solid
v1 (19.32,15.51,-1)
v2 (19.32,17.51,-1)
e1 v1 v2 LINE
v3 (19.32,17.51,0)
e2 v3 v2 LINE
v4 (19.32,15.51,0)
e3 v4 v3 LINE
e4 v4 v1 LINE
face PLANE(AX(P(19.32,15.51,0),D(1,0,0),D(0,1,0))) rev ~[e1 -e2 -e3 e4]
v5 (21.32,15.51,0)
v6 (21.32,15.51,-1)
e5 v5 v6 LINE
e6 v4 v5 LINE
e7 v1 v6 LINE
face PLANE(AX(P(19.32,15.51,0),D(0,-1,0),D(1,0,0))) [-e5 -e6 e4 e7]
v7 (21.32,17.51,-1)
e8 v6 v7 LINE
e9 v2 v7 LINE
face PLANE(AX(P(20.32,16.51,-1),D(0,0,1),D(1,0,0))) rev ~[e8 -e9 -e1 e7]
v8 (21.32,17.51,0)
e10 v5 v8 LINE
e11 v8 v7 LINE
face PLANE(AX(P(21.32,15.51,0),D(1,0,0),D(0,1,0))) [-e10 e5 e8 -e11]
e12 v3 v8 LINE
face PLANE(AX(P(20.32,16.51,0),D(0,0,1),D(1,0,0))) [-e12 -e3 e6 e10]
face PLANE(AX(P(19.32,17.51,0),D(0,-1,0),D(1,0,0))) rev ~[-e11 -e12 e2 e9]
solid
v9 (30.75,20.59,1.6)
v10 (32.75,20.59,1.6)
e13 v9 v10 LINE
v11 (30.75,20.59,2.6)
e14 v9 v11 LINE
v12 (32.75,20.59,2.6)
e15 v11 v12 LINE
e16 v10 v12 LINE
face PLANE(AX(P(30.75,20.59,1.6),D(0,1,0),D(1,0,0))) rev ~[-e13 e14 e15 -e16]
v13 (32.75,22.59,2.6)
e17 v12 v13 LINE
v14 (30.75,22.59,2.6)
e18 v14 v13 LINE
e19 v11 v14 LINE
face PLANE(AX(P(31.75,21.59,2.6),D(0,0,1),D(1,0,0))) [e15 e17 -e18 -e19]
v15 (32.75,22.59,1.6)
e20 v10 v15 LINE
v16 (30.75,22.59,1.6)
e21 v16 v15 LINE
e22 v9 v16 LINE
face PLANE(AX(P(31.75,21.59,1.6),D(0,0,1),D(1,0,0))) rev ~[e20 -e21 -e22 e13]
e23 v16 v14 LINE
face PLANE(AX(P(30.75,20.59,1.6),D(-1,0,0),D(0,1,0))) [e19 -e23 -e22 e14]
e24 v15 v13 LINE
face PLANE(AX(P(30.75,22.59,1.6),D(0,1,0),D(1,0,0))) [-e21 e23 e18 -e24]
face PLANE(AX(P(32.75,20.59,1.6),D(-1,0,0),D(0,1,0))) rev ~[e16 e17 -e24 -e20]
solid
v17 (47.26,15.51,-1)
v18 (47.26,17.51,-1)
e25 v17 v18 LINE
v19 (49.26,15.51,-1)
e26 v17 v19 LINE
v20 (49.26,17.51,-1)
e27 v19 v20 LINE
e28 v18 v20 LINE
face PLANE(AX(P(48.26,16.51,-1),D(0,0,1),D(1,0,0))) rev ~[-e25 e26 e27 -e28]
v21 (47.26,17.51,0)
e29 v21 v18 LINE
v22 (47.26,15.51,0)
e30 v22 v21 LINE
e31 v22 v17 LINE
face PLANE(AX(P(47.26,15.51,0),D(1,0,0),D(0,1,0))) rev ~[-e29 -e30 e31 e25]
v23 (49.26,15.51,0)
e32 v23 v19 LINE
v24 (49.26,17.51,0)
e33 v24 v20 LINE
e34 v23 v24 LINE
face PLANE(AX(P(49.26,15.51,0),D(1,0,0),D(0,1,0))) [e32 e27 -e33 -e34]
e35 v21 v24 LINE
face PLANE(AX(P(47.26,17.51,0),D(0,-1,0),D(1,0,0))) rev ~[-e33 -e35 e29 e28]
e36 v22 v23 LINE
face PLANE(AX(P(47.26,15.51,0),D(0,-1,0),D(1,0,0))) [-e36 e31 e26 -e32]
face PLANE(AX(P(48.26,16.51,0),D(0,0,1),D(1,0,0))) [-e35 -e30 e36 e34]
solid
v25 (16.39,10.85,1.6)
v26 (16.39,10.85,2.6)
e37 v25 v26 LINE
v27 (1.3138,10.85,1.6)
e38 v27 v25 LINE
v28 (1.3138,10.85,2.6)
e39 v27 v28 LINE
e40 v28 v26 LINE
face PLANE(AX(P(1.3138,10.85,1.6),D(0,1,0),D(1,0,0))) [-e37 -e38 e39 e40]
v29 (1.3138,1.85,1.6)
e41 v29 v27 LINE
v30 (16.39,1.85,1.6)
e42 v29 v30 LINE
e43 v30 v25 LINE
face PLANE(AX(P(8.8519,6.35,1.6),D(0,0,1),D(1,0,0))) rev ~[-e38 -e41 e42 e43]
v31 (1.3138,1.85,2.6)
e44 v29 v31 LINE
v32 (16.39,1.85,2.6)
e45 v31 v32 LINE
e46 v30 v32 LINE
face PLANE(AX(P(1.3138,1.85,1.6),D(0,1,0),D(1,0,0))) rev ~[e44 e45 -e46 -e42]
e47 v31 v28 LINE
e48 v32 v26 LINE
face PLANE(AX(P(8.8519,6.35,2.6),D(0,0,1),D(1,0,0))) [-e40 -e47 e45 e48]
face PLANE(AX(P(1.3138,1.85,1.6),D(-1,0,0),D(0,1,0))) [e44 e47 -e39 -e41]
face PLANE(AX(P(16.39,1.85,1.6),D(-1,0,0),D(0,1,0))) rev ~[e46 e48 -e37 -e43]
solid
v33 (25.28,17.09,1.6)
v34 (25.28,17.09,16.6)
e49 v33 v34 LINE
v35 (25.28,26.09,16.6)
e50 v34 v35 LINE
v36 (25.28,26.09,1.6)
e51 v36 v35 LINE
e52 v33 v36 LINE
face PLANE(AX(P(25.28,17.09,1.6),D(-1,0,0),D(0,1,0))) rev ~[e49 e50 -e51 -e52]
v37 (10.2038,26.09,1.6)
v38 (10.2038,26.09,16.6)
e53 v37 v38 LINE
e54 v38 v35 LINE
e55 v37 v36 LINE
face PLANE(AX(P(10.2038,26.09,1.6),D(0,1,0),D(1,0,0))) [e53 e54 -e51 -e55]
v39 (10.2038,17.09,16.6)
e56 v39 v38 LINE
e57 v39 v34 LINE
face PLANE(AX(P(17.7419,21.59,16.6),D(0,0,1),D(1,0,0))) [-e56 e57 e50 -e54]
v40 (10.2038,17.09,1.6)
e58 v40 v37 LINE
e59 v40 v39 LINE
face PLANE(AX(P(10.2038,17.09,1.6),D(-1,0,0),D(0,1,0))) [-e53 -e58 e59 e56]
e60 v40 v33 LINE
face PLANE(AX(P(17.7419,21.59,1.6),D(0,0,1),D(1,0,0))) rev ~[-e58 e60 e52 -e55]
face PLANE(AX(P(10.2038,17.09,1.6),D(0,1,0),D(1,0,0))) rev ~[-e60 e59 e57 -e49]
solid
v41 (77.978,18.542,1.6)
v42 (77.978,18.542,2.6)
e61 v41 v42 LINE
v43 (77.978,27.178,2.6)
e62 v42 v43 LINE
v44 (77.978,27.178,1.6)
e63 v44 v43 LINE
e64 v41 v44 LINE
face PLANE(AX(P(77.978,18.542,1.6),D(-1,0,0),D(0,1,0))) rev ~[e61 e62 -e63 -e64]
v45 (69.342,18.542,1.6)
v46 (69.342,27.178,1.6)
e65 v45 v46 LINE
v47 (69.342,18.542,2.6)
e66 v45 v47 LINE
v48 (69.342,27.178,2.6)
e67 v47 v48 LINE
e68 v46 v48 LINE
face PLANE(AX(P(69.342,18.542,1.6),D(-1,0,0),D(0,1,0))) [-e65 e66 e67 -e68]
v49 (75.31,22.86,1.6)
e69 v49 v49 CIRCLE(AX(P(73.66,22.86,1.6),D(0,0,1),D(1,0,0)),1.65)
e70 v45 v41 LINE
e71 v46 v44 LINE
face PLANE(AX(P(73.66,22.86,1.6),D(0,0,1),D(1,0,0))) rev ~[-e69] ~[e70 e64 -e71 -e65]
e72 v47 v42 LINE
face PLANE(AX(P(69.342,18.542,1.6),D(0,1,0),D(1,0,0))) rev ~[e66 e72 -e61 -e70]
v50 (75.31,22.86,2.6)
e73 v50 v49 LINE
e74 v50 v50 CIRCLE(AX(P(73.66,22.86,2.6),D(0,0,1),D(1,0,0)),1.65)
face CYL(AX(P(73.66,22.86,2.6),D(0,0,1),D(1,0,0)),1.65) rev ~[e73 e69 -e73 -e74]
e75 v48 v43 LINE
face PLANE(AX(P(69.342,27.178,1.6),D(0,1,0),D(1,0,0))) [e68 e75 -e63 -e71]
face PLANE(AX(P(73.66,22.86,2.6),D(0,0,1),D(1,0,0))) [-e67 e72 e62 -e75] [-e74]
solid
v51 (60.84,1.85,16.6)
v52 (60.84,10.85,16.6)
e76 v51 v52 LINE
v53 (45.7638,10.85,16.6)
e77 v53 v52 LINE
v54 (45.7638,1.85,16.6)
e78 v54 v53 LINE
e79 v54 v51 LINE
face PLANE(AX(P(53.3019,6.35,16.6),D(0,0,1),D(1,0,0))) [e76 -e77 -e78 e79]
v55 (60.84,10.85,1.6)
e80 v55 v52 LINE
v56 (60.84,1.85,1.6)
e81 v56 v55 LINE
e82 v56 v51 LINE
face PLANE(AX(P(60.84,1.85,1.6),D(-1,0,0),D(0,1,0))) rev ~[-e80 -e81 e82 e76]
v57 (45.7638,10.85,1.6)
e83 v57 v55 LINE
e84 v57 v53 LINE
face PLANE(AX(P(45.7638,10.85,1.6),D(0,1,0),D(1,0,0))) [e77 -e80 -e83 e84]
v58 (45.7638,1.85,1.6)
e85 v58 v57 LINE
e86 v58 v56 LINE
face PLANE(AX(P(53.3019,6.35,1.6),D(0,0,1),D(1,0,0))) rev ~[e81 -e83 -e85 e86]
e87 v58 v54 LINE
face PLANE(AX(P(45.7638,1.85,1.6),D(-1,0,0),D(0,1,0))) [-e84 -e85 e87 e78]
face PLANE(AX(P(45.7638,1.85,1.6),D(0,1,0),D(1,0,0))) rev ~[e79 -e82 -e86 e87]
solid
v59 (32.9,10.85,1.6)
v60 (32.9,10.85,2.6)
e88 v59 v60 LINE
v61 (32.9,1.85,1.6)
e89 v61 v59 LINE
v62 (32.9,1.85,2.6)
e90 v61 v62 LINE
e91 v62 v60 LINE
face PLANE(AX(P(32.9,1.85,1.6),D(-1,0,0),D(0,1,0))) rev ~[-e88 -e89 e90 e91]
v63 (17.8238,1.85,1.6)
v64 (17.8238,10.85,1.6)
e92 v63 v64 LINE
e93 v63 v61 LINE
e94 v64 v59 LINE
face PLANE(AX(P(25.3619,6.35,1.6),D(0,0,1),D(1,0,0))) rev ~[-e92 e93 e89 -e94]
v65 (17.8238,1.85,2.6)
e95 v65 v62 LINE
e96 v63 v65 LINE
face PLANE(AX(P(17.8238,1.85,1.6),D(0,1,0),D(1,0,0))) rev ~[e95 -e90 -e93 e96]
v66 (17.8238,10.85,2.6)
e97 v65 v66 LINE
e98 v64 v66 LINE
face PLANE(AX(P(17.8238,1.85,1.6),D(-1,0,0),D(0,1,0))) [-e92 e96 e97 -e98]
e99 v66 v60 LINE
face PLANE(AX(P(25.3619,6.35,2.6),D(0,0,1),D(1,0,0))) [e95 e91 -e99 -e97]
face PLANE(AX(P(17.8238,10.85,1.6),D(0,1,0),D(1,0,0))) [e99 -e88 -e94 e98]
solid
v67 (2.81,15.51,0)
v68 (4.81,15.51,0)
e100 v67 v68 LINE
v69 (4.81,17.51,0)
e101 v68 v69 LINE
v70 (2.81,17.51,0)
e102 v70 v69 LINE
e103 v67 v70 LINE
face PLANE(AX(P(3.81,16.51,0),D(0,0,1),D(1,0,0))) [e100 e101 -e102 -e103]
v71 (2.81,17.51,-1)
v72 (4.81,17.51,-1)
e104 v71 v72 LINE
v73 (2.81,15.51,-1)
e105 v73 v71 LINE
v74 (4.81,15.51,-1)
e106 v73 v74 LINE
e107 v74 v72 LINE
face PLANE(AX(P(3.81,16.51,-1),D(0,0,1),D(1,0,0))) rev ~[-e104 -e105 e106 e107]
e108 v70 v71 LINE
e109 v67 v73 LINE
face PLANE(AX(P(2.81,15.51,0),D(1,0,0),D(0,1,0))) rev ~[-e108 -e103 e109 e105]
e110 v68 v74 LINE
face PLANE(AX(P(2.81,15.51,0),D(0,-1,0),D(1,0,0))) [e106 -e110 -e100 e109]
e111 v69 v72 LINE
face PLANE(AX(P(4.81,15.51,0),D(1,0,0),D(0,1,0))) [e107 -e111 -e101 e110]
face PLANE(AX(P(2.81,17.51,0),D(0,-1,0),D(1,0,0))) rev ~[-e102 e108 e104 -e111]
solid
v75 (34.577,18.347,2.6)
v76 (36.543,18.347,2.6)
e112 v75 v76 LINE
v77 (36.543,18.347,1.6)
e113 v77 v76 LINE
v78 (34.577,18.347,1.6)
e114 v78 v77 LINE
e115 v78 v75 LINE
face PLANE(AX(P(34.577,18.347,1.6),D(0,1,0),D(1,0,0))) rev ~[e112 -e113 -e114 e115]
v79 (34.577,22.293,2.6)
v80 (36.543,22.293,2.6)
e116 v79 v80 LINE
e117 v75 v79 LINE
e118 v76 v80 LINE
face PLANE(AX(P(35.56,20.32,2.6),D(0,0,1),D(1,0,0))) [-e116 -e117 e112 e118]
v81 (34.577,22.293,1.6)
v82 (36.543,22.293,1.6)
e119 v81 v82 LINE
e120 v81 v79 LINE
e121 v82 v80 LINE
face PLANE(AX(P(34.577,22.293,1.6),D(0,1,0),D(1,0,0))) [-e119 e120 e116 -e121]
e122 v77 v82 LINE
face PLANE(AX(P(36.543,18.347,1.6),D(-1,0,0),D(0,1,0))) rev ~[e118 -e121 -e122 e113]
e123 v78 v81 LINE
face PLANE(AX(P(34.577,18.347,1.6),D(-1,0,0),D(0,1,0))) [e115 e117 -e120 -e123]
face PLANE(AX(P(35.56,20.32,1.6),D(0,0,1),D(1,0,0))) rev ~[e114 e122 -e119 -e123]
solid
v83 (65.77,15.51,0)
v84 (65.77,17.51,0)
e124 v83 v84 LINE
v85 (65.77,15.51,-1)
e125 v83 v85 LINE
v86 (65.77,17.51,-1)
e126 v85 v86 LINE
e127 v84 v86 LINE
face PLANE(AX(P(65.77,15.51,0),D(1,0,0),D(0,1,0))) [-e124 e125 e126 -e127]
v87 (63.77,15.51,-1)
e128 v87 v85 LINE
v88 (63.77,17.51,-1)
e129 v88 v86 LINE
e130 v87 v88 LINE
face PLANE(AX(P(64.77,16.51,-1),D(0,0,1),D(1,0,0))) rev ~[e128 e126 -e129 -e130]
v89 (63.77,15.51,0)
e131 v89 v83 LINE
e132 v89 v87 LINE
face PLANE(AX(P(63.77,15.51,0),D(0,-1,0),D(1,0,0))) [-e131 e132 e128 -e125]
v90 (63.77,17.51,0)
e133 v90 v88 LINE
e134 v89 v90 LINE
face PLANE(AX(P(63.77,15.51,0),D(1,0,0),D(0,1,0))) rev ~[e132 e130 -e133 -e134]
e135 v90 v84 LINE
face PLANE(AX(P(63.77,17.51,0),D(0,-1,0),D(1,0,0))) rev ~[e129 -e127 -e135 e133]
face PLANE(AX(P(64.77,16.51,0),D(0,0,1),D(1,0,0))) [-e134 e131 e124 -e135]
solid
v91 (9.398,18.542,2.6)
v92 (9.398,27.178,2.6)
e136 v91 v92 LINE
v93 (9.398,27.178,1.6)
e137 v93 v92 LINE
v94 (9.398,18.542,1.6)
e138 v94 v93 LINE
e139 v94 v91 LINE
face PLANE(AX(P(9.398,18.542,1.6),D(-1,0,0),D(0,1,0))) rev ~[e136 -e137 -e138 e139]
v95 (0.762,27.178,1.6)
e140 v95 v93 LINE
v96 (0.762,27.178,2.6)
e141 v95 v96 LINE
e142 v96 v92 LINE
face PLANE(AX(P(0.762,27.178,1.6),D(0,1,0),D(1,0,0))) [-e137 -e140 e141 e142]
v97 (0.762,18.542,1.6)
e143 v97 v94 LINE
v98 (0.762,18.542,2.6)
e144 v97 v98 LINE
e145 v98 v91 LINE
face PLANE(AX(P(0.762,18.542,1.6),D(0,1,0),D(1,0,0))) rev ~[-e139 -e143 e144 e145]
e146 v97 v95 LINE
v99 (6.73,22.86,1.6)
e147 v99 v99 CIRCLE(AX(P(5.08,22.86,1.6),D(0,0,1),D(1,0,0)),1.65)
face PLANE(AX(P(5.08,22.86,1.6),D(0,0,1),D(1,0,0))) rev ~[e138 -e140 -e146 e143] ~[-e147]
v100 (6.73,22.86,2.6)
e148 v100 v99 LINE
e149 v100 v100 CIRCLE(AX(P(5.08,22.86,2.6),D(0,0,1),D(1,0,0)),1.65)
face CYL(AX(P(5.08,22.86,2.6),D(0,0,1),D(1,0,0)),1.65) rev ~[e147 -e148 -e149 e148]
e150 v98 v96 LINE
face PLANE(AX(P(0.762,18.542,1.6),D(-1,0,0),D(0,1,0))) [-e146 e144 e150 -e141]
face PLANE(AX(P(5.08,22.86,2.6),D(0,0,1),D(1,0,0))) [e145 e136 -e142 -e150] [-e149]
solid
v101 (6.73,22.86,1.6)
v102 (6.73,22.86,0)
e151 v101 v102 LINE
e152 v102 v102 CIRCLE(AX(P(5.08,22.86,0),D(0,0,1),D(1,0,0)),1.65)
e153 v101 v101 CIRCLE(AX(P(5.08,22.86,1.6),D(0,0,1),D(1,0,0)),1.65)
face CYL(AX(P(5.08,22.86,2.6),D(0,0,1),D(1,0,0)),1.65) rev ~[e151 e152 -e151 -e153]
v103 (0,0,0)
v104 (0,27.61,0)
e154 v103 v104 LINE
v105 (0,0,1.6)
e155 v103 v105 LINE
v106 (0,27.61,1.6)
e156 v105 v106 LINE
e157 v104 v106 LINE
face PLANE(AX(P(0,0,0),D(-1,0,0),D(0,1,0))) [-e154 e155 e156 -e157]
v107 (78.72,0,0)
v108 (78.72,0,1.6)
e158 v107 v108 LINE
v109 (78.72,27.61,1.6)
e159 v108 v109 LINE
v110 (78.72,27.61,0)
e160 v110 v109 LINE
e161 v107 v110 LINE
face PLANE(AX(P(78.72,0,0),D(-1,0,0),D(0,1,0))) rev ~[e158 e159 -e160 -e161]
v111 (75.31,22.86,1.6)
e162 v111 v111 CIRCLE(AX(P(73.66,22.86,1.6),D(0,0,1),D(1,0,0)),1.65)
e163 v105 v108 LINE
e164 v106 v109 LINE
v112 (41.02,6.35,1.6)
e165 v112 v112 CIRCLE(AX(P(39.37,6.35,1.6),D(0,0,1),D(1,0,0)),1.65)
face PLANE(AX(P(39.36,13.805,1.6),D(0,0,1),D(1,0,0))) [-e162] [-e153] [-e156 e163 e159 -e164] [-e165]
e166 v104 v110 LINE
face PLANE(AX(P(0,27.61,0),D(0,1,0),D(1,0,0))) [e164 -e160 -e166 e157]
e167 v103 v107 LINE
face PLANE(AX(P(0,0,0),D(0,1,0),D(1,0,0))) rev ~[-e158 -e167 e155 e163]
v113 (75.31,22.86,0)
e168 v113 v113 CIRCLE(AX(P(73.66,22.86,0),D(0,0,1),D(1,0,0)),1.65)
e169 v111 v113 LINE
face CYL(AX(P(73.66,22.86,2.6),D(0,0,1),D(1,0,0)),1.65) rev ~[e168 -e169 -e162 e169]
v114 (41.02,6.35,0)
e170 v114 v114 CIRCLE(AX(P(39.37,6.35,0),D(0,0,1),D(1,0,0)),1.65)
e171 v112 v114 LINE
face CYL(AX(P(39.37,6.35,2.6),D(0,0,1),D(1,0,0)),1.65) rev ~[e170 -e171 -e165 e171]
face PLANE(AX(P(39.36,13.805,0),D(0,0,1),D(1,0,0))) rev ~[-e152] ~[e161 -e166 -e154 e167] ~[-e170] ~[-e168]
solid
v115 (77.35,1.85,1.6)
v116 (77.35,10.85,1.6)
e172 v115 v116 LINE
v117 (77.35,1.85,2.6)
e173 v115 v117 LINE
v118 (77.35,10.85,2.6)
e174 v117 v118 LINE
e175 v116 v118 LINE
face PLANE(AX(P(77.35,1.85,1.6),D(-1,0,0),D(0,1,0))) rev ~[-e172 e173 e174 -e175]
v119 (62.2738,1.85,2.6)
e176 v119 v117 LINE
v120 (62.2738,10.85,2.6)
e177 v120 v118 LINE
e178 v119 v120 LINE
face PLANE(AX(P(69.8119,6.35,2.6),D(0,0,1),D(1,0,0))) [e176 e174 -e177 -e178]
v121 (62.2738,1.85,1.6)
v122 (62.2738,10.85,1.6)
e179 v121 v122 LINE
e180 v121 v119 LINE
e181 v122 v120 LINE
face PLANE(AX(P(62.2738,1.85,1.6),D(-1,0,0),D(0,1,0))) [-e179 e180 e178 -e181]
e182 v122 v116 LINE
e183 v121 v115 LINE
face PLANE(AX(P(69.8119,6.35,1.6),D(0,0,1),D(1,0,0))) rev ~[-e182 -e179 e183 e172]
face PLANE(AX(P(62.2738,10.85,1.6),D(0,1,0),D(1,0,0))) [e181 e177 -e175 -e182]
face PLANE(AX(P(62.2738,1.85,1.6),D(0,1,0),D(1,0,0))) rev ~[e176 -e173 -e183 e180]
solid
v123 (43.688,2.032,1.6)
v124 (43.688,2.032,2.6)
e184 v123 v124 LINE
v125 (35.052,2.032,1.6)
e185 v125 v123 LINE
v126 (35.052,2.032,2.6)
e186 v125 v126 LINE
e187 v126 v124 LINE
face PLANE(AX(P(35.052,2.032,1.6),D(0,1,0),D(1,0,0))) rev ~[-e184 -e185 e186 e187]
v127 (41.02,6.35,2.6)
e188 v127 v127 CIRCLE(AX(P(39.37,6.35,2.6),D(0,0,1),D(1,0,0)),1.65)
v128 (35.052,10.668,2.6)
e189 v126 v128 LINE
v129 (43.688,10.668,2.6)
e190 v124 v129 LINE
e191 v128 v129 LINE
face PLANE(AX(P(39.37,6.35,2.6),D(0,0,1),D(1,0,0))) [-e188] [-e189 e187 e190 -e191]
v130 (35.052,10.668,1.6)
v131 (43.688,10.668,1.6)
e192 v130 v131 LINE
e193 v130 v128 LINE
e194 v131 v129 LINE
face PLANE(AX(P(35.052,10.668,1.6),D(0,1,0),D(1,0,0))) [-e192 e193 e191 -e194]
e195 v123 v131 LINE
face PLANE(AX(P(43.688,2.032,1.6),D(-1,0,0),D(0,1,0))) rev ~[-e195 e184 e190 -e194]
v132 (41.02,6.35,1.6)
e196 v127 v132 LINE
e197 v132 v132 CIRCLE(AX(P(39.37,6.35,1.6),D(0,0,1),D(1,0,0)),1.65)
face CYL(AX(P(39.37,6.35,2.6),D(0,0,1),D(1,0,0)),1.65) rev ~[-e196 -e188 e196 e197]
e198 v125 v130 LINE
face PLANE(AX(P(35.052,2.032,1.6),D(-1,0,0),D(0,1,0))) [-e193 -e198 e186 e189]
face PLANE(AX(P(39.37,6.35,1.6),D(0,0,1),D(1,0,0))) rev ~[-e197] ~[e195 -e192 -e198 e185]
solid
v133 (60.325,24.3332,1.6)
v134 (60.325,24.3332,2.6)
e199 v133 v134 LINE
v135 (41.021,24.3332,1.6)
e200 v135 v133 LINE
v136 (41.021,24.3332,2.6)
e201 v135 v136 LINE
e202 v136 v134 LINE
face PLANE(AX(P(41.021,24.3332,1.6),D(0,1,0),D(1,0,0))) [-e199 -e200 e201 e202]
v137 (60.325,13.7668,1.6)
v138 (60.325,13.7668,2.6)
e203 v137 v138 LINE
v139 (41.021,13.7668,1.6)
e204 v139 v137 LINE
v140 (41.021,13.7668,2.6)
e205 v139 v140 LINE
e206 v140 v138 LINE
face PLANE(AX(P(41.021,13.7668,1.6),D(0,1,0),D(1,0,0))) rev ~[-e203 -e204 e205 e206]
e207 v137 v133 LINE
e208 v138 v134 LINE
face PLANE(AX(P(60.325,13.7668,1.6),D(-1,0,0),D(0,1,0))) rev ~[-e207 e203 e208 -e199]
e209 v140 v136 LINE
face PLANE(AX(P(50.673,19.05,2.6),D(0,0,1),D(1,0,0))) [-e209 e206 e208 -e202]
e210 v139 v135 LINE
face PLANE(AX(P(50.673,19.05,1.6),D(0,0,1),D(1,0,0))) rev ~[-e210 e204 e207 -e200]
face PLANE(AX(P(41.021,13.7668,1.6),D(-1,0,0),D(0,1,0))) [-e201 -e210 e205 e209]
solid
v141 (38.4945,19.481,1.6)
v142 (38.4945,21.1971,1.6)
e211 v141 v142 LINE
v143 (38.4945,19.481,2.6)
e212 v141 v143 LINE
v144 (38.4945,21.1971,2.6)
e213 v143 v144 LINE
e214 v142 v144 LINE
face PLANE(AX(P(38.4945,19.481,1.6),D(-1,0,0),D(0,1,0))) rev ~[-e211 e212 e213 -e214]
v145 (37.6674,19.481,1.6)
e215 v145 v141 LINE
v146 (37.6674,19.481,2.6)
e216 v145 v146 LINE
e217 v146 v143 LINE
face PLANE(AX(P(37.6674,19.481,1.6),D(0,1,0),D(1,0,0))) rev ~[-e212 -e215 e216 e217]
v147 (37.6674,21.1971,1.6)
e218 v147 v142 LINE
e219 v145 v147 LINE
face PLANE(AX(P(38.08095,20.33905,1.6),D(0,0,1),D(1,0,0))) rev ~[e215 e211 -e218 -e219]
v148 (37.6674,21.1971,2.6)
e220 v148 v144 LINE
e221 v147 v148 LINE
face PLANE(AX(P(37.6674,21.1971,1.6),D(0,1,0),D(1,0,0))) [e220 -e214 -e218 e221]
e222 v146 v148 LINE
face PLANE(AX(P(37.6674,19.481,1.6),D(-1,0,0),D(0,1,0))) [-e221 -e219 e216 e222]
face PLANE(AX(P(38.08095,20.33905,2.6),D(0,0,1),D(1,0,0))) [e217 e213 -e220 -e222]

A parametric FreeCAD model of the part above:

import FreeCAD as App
import Part
import Sketcher
from FreeCAD import Vector
Q = App.Units.Quantity

doc = App.newDocument("Part")
body = doc.addObject("PartDesign::Body", "Body")

sketch1 = body.newObject("Sketcher::SketchObject", "Sketch")
sketch1.AttachmentSupport = (doc.getObject("XY_Plane"), [""])
sketch1.MapMode = "FlatFace"
sketch1.addGeometry([
    Part.LineSegment(Vector(0, 28, 0), Vector(0, 0, 0)),
    Part.LineSegment(Vector(0, 0, 0), Vector(79, 0, 0)),
    Part.LineSegment(Vector(79, 0, 0), Vector(79, 28, 0)),
    Part.LineSegment(Vector(79, 28, 0), Vector(0, 28, 0)),
], False)
sketch1.addConstraint([
    Sketcher.Constraint("Coincident", 0, 2, 1, 1),
    Sketcher.Constraint("Coincident", 1, 2, 2, 1),
    Sketcher.Constraint("Coincident", 2, 2, 3, 1),
    Sketcher.Constraint("Coincident", 3, 2, 0, 1),
    Sketcher.Constraint("Vertical", 0),
    Sketcher.Constraint("Horizontal", 1),
    Sketcher.Constraint("Vertical", 2),
    Sketcher.Constraint("Horizontal", 3),
    Sketcher.Constraint("Coincident", 0, 2, -1, 1),
    Sketcher.Constraint("DistanceX", 1, 1, 1, 2, Q("78.72 mm")),
    Sketcher.Constraint("DistanceY", 0, 2, 0, 1, Q("27.61 mm")),
])
pad1 = body.newObject("PartDesign::Pad", "Pad")
pad1.Profile = sketch1
pad1.Length = 1.6
body2 = doc.addObject("PartDesign::Body", "Body001")

sketch2 = body2.newObject("Sketcher::SketchObject", "Sketch001")
sketch2.AttachmentSupport = (doc.getObject("XY_Plane001"), [""])
sketch2.MapMode = "FlatFace"
sketch2.AttachmentOffset = App.Placement(Vector(0, 0, 1.6), App.Rotation())
sketch2.addGeometry([
    Part.LineSegment(Vector(37.7, 21.2, 0), Vector(37.7, 19.5, 0)),
    Part.LineSegment(Vector(37.7, 19.5, 0), Vector(38.5, 19.5, 0)),
    Part.LineSegment(Vector(38.5, 19.5, 0), Vector(38.5, 21.2, 0)),
    Part.LineSegment(Vector(38.5, 21.2, 0), Vector(37.7, 21.2, 0)),
], False)
sketch2.addConstraint([
    Sketcher.Constraint("Coincident", 0, 2, 1, 1),
    Sketcher.Constraint("Coincident", 1, 2, 2, 1),
    Sketcher.Constraint("Coincident", 2, 2, 3, 1),
    Sketcher.Constraint("Coincident", 3, 2, 0, 1),
    Sketcher.Constraint("Vertical", 0),
    Sketcher.Constraint("Horizontal", 1),
    Sketcher.Constraint("Vertical", 2),
    Sketcher.Constraint("Horizontal", 3),
    Sketcher.Constraint("DistanceX", 1, 1, 1, 2, Q("0.8271 mm")),
    Sketcher.Constraint("DistanceY", 0, 2, 0, 1, Q("1.7161 mm")),
    Sketcher.Constraint("DistanceY", -1, 1, 0, 2, Q("19.481 mm")),
    Sketcher.Constraint("DistanceX", -1, 1, 0, 2, Q("37.6674 mm")),
])
pad2 = body2.newObject("PartDesign::Pad", "Pad001")
pad2.Profile = sketch2
pad2.Length = 1
body3 = doc.addObject("PartDesign::Body", "Body002")

sketch3 = body3.newObject("Sketcher::SketchObject", "Sketch002")
sketch3.AttachmentSupport = (doc.getObject("XY_Plane002"), [""])
sketch3.MapMode = "FlatFace"
sketch3.AttachmentOffset = App.Placement(Vector(0, 0, 1.6), App.Rotation())
sketch3.addGeometry([
    Part.LineSegment(Vector(1, 27, 0), Vector(1, 19, 0)),
    Part.LineSegment(Vector(1, 19, 0), Vector(9, 19, 0)),
    Part.LineSegment(Vector(9, 19, 0), Vector(9, 27, 0)),
    Part.LineSegment(Vector(9, 27, 0), Vector(1, 27, 0)),
], False)
sketch3.addConstraint([
    Sketcher.Constraint("Coincident", 0, 2, 1, 1),
    Sketcher.Constraint("Coincident", 1, 2, 2, 1),
    Sketcher.Constraint("Coincident", 2, 2, 3, 1),
    Sketcher.Constraint("Coincident", 3, 2, 0, 1),
    Sketcher.Constraint("Vertical", 0),
    Sketcher.Constraint("Horizontal", 1),
    Sketcher.Constraint("Vertical", 2),
    Sketcher.Constraint("Horizontal", 3),
    Sketcher.Constraint("Equal", 3, 0),
    Sketcher.Constraint("DistanceX", 1, 1, 1, 2, Q("8.636 mm")),
    Sketcher.Constraint("DistanceX", -1, 1, 0, 2, Q("0.762 mm")),
    Sketcher.Constraint("DistanceY", -1, 1, 0, 2, Q("18.542 mm")),
])
pad3 = body3.newObject("PartDesign::Pad", "Pad002")
pad3.Profile = sketch3
pad3.Length = 1
body4 = doc.addObject("PartDesign::Body", "Body003")

sketch4 = body4.newObject("Sketcher::SketchObject", "Sketch003")
sketch4.AttachmentSupport = (doc.getObject("XY_Plane003"), [""])
sketch4.MapMode = "FlatFace"
sketch4.AttachmentOffset = App.Placement(Vector(0, 0, 1.6), App.Rotation())
sketch4.addGeometry([
    Part.LineSegment(Vector(69, 27, 0), Vector(69, 19, 0)),
    Part.LineSegment(Vector(69, 19, 0), Vector(78, 19, 0)),
    Part.LineSegment(Vector(78, 19, 0), Vector(78, 27, 0)),
    Part.LineSegment(Vector(78, 27, 0), Vector(69, 27, 0)),
], False)
sketch4.addConstraint([
    Sketcher.Constraint("Coincident", 0, 2, 1, 1),
    Sketcher.Constraint("Coincident", 1, 2, 2, 1),
    Sketcher.Constraint("Coincident", 2, 2, 3, 1),
    Sketcher.Constraint("Coincident", 3, 2, 0, 1),
    Sketcher.Constraint("Vertical", 0),
    Sketcher.Constraint("Horizontal", 1),
    Sketcher.Constraint("Vertical", 2),
    Sketcher.Constraint("Horizontal", 3),
    Sketcher.Constraint("Equal", 3, 0),
    Sketcher.Constraint("DistanceX", 1, 1, 1, 2, Q("8.636 mm")),
    Sketcher.Constraint("DistanceX", -1, 1, 0, 2, Q("69.342 mm")),
    Sketcher.Constraint("DistanceY", -1, 1, 0, 2, Q("18.542 mm")),
])
pad4 = body4.newObject("PartDesign::Pad", "Pad003")
pad4.Profile = sketch4
pad4.Length = 1
body5 = doc.addObject("PartDesign::Body", "Body004")

sketch5 = body5.newObject("Sketcher::SketchObject", "Sketch004")
sketch5.AttachmentSupport = (doc.getObject("XY_Plane004"), [""])
sketch5.MapMode = "FlatFace"
sketch5.AttachmentOffset = App.Placement(Vector(0, 0, 1.6), App.Rotation())
sketch5.addGeometry([
    Part.LineSegment(Vector(35, 11, 0), Vector(35, 2, 0)),
    Part.LineSegment(Vector(35, 2, 0), Vector(44, 2, 0)),
    Part.LineSegment(Vector(44, 2, 0), Vector(44, 11, 0)),
    Part.LineSegment(Vector(44, 11, 0), Vector(35, 11, 0)),
], False)
sketch5.addConstraint([
    Sketcher.Constraint("Coincident", 0, 2, 1, 1),
    Sketcher.Constraint("Coincident", 1, 2, 2, 1),
    Sketcher.Constraint("Coincident", 2, 2, 3, 1),
    Sketcher.Constraint("Coincident", 3, 2, 0, 1),
    Sketcher.Constraint("Vertical", 0),
    Sketcher.Constraint("Horizontal", 1),
    Sketcher.Constraint("Vertical", 2),
    Sketcher.Constraint("Horizontal", 3),
    Sketcher.Constraint("Equal", 3, 0),
    Sketcher.Constraint("DistanceX", 1, 1, 1, 2, Q("8.636 mm")),
    Sketcher.Constraint("DistanceX", -1, 1, 0, 2, Q("35.052 mm")),
    Sketcher.Constraint("DistanceY", -1, 1, 0, 2, Q("2.032 mm")),
])
pad5 = body5.newObject("PartDesign::Pad", "Pad004")
pad5.Profile = sketch5
pad5.Length = 1
body6 = doc.addObject("PartDesign::Body", "Body005")

sketch6 = body6.newObject("Sketcher::SketchObject", "Sketch005")
sketch6.AttachmentSupport = (doc.getObject("XY_Plane005"), [""])
sketch6.MapMode = "FlatFace"
sketch6.AttachmentOffset = App.Placement(Vector(0, 0, 1.6), App.Rotation())
sketch6.addGeometry([
    Part.LineSegment(Vector(41, 24, 0), Vector(41, 14, 0)),
    Part.LineSegment(Vector(41, 14, 0), Vector(60, 14, 0)),
    Part.LineSegment(Vector(60, 14, 0), Vector(60, 24, 0)),
    Part.LineSegment(Vector(60, 24, 0), Vector(41, 24, 0)),
], False)
sketch6.addConstraint([
    Sketcher.Constraint("Coincident", 0, 2, 1, 1),
    Sketcher.Constraint("Coincident", 1, 2, 2, 1),
    Sketcher.Constraint("Coincident", 2, 2, 3, 1),
    Sketcher.Constraint("Coincident", 3, 2, 0, 1),
    Sketcher.Constraint("Vertical", 0),
    Sketcher.Constraint("Horizontal", 1),
    Sketcher.Constraint("Vertical", 2),
    Sketcher.Constraint("Horizontal", 3),
    Sketcher.Constraint("DistanceX", 1, 1, 1, 2, Q("19.304 mm")),
    Sketcher.Constraint("DistanceY", 0, 2, 0, 1, Q("10.5664 mm")),
    Sketcher.Constraint("DistanceX", -1, 1, 0, 2, Q("41.021 mm")),
    Sketcher.Constraint("DistanceY", -1, 1, 0, 2, Q("13.7668 mm")),
])
pad6 = body6.newObject("PartDesign::Pad", "Pad005")
pad6.Profile = sketch6
pad6.Length = 1
body7 = doc.addObject("PartDesign::Body", "Body006")

sketch7 = body7.newObject("Sketcher::SketchObject", "Sketch006")
sketch7.AttachmentSupport = (doc.getObject("XY_Plane006"), [""])
sketch7.MapMode = "FlatFace"
sketch7.AttachmentOffset = App.Placement(Vector(0, 0, 1.6), App.Rotation())
sketch7.addGeometry([
    Part.LineSegment(Vector(34.6, 22.3, 0), Vector(34.6, 18.3, 0)),
    Part.LineSegment(Vector(34.6, 18.3, 0), Vector(36.5, 18.3, 0)),
    Part.LineSegment(Vector(36.5, 18.3, 0), Vector(36.5, 22.3, 0)),
    Part.LineSegment(Vector(36.5, 22.3, 0), Vector(34.6, 22.3, 0)),
], False)
sketch7.addConstraint([
    Sketcher.Constraint("Coincident", 0, 2, 1, 1),
    Sketcher.Constraint("Coincident", 1, 2, 2, 1),
    Sketcher.Constraint("Coincident", 2, 2, 3, 1),
    Sketcher.Constraint("Coincident", 3, 2, 0, 1),
    Sketcher.Constraint("Vertical", 0),
    Sketcher.Constraint("Horizontal", 1),
    Sketcher.Constraint("Vertical", 2),
    Sketcher.Constraint("Horizontal", 3),
    Sketcher.Constraint("DistanceX", 1, 1, 1, 2, Q("1.966 mm")),
    Sketcher.Constraint("DistanceY", 0, 2, 0, 1, Q("3.946 mm")),
    Sketcher.Constraint("DistanceX", -1, 1, 0, 2, Q("34.577 mm")),
    Sketcher.Constraint("DistanceY", -1, 1, 0, 2, Q("18.347 mm")),
])
pad7 = body7.newObject("PartDesign::Pad", "Pad006")
pad7.Profile = sketch7
pad7.Length = 1
body8 = doc.addObject("PartDesign::Body", "Body007")

sketch8 = body8.newObject("Sketcher::SketchObject", "Sketch007")
sketch8.AttachmentSupport = (doc.getObject("XY_Plane007"), [""])
sketch8.MapMode = "FlatFace"
sketch8.AttachmentOffset = App.Placement(Vector(0, 0, 1.6), App.Rotation())
sketch8.addGeometry([
    Part.LineSegment(Vector(10, 26, 0), Vector(10, 17, 0)),
    Part.LineSegment(Vector(10, 17, 0), Vector(25, 17, 0)),
    Part.LineSegment(Vector(25, 17, 0), Vector(25, 26, 0)),
    Part.LineSegment(Vector(25, 26, 0), Vector(10, 26, 0)),
], False)
sketch8.addConstraint([
    Sketcher.Constraint("Coincident", 0, 2, 1, 1),
    Sketcher.Constraint("Coincident", 1, 2, 2, 1),
    Sketcher.Constraint("Coincident", 2, 2, 3, 1),
    Sketcher.Constraint("Coincident", 3, 2, 0, 1),
    Sketcher.Constraint("Vertical", 0),
    Sketcher.Constraint("Horizontal", 1),
    Sketcher.Constraint("Vertical", 2),
    Sketcher.Constraint("Horizontal", 3),
    Sketcher.Constraint("DistanceY", 0, 2, 0, 1, Q("9 mm")),
    Sketcher.Constraint("DistanceY", -1, 1, 0, 2, Q("17.09 mm")),
    Sketcher.Constraint("DistanceX", -1, 1, 1, 2, Q("25.28 mm")),
    Sketcher.Constraint("DistanceX", 1, 1, 1, 2, Q("15.0762 mm")),
])
pad8 = body8.newObject("PartDesign::Pad", "Pad007")
pad8.Profile = sketch8
pad8.Length = 15
body9 = doc.addObject("PartDesign::Body", "Body008")

sketch9 = body9.newObject("Sketcher::SketchObject", "Sketch008")
sketch9.AttachmentSupport = (doc.getObject("XY_Plane008"), [""])
sketch9.MapMode = "FlatFace"
sketch9.AttachmentOffset = App.Placement(Vector(0, 0, 1.6), App.Rotation())
sketch9.addGeometry([
    Part.LineSegment(Vector(18, 11, 0), Vector(18, 2, 0)),
    Part.LineSegment(Vector(18, 2, 0), Vector(33, 2, 0)),
    Part.LineSegment(Vector(33, 2, 0), Vector(33, 11, 0)),
    Part.LineSegment(Vector(33, 11, 0), Vector(18, 11, 0)),
], False)
sketch9.addConstraint([
    Sketcher.Constraint("Coincident", 0, 2, 1, 1),
    Sketcher.Constraint("Coincident", 1, 2, 2, 1),
    Sketcher.Constraint("Coincident", 2, 2, 3, 1),
    Sketcher.Constraint("Coincident", 3, 2, 0, 1),
    Sketcher.Constraint("Vertical", 0),
    Sketcher.Constraint("Horizontal", 1),
    Sketcher.Constraint("Vertical", 2),
    Sketcher.Constraint("Horizontal", 3),
    Sketcher.Constraint("DistanceY", 0, 2, 0, 1, Q("9 mm")),
    Sketcher.Constraint("DistanceX", -1, 1, 1, 2, Q("32.9 mm")),
    Sketcher.Constraint("DistanceY", -1, 1, 0, 2, Q("1.85 mm")),
    Sketcher.Constraint("DistanceX", 1, 1, 1, 2, Q("15.0762 mm")),
])
pad9 = body9.newObject("PartDesign::Pad", "Pad008")
pad9.Profile = sketch9
pad9.Length = 1
body10 = doc.addObject("PartDesign::Body", "Body009")

sketch10 = body10.newObject("Sketcher::SketchObject", "Sketch009")
sketch10.AttachmentSupport = (doc.getObject("XY_Plane009"), [""])
sketch10.MapMode = "FlatFace"
sketch10.AttachmentOffset = App.Placement(Vector(0, 0, 1.6), App.Rotation())
sketch10.addGeometry([
    Part.LineSegment(Vector(46, 11, 0), Vector(46, 2, 0)),
    Part.LineSegment(Vector(46, 2, 0), Vector(61, 2, 0)),
    Part.LineSegment(Vector(61, 2, 0), Vector(61, 11, 0)),
    Part.LineSegment(Vector(61, 11, 0), Vector(46, 11, 0)),
], False)
sketch10.addConstraint([
    Sketcher.Constraint("Coincident", 0, 2, 1, 1),
    Sketcher.Constraint("Coincident", 1, 2, 2, 1),
    Sketcher.Constraint("Coincident", 2, 2, 3, 1),
    Sketcher.Constraint("Coincident", 3, 2, 0, 1),
    Sketcher.Constraint("Vertical", 0),
    Sketcher.Constraint("Horizontal", 1),
    Sketcher.Constraint("Vertical", 2),
    Sketcher.Constraint("Horizontal", 3),
    Sketcher.Constraint("DistanceY", 0, 2, 0, 1, Q("9 mm")),
    Sketcher.Constraint("DistanceY", -1, 1, 0, 2, Q("1.85 mm")),
    Sketcher.Constraint("DistanceX", -1, 1, 1, 2, Q("60.84 mm")),
    Sketcher.Constraint("DistanceX", 1, 1, 1, 2, Q("15.0762 mm")),
])
pad10 = body10.newObject("PartDesign::Pad", "Pad009")
pad10.Profile = sketch10
pad10.Length = 15
body11 = doc.addObject("PartDesign::Body", "Body010")

sketch11 = body11.newObject("Sketcher::SketchObject", "Sketch010")
sketch11.AttachmentSupport = (doc.getObject("XY_Plane010"), [""])
sketch11.MapMode = "FlatFace"
sketch11.AttachmentOffset = App.Placement(Vector(0, 0, 1.6), App.Rotation())
sketch11.addGeometry([
    Part.LineSegment(Vector(1, 11, 0), Vector(1, 2, 0)),
    Part.LineSegment(Vector(1, 2, 0), Vector(16, 2, 0)),
    Part.LineSegment(Vector(16, 2, 0), Vector(16, 11, 0)),
    Part.LineSegment(Vector(16, 11, 0), Vector(1, 11, 0)),
], False)
sketch11.addConstraint([
    Sketcher.Constraint("Coincident", 0, 2, 1, 1),
    Sketcher.Constraint("Coincident", 1, 2, 2, 1),
    Sketcher.Constraint("Coincident", 2, 2, 3, 1),
    Sketcher.Constraint("Coincident", 3, 2, 0, 1),
    Sketcher.Constraint("Vertical", 0),
    Sketcher.Constraint("Horizontal", 1),
    Sketcher.Constraint("Vertical", 2),
    Sketcher.Constraint("Horizontal", 3),
    Sketcher.Constraint("DistanceY", 0, 2, 0, 1, Q("9 mm")),
    Sketcher.Constraint("DistanceY", -1, 1, 0, 2, Q("1.85 mm")),
    Sketcher.Constraint("DistanceX", -1, 1, 1, 2, Q("16.39 mm")),
    Sketcher.Constraint("DistanceX", 1, 1, 1, 2, Q("15.0762 mm")),
])
pad11 = body11.newObject("PartDesign::Pad", "Pad010")
pad11.Profile = sketch11
pad11.Length = 1
body12 = doc.addObject("PartDesign::Body", "Body011")

sketch12 = body12.newObject("Sketcher::SketchObject", "Sketch011")
sketch12.AttachmentSupport = (doc.getObject("XY_Plane011"), [""])
sketch12.MapMode = "FlatFace"
sketch12.addGeometry([
    Part.LineSegment(Vector(19.3, 17.5, 0), Vector(19.3, 15.5, 0)),
    Part.LineSegment(Vector(19.3, 15.5, 0), Vector(21.3, 15.5, 0)),
    Part.LineSegment(Vector(21.3, 15.5, 0), Vector(21.3, 17.5, 0)),
    Part.LineSegment(Vector(21.3, 17.5, 0), Vector(19.3, 17.5, 0)),
], False)
sketch12.addConstraint([
    Sketcher.Constraint("Coincident", 0, 2, 1, 1),
    Sketcher.Constraint("Coincident", 1, 2, 2, 1),
    Sketcher.Constraint("Coincident", 2, 2, 3, 1),
    Sketcher.Constraint("Coincident", 3, 2, 0, 1),
    Sketcher.Constraint("Vertical", 0),
    Sketcher.Constraint("Horizontal", 1),
    Sketcher.Constraint("Vertical", 2),
    Sketcher.Constraint("Horizontal", 3),
    Sketcher.Constraint("Equal", 3, 0),
    Sketcher.Constraint("DistanceX", 1, 1, 1, 2, Q("2 mm")),
    Sketcher.Constraint("DistanceX", -1, 1, 0, 2, Q("19.32 mm")),
    Sketcher.Constraint("DistanceY", -1, 1, 0, 2, Q("15.51 mm")),
])
pad12 = body12.newObject("PartDesign::Pad", "Pad011")
pad12.Profile = sketch12
pad12.Length = 1
pad12.Reversed = True
body13 = doc.addObject("PartDesign::Body", "Body012")

sketch13 = body13.newObject("Sketcher::SketchObject", "Sketch012")
sketch13.AttachmentSupport = (doc.getObject("XY_Plane012"), [""])
sketch13.MapMode = "FlatFace"
sketch13.addGeometry([
    Part.LineSegment(Vector(47.3, 17.5, 0), Vector(47.3, 15.5, 0)),
    Part.LineSegment(Vector(47.3, 15.5, 0), Vector(49.3, 15.5, 0)),
    Part.LineSegment(Vector(49.3, 15.5, 0), Vector(49.3, 17.5, 0)),
    Part.LineSegment(Vector(49.3, 17.5, 0), Vector(47.3, 17.5, 0)),
], False)
sketch13.addConstraint([
    Sketcher.Constraint("Coincident", 0, 2, 1, 1),
    Sketcher.Constraint("Coincident", 1, 2, 2, 1),
    Sketcher.Constraint("Coincident", 2, 2, 3, 1),
    Sketcher.Constraint("Coincident", 3, 2, 0, 1),
    Sketcher.Constraint("Vertical", 0),
    Sketcher.Constraint("Horizontal", 1),
    Sketcher.Constraint("Vertical", 2),
    Sketcher.Constraint("Horizontal", 3),
    Sketcher.Constraint("Equal", 3, 0),
    Sketcher.Constraint("DistanceX", 1, 1, 1, 2, Q("2 mm")),
    Sketcher.Constraint("DistanceX", -1, 1, 0, 2, Q("47.26 mm")),
    Sketcher.Constraint("DistanceY", -1, 1, 0, 2, Q("15.51 mm")),
])
pad13 = body13.newObject("PartDesign::Pad", "Pad012")
pad13.Profile = sketch13
pad13.Length = 1
pad13.Reversed = True
body14 = doc.addObject("PartDesign::Body", "Body013")

sketch14 = body14.newObject("Sketcher::SketchObject", "Sketch013")
sketch14.AttachmentSupport = (doc.getObject("XY_Plane013"), [""])
sketch14.MapMode = "FlatFace"
sketch14.addGeometry([
    Part.LineSegment(Vector(2.8, 17.5, 0), Vector(2.8, 15.5, 0)),
    Part.LineSegment(Vector(2.8, 15.5, 0), Vector(4.8, 15.5, 0)),
    Part.LineSegment(Vector(4.8, 15.5, 0), Vector(4.8, 17.5, 0)),
    Part.LineSegment(Vector(4.8, 17.5, 0), Vector(2.8, 17.5, 0)),
], False)
sketch14.addConstraint([
    Sketcher.Constraint("Coincident", 0, 2, 1, 1),
    Sketcher.Constraint("Coincident", 1, 2, 2, 1),
    Sketcher.Constraint("Coincident", 2, 2, 3, 1),
    Sketcher.Constraint("Coincident", 3, 2, 0, 1),
    Sketcher.Constraint("Vertical", 0),
    Sketcher.Constraint("Horizontal", 1),
    Sketcher.Constraint("Vertical", 2),
    Sketcher.Constraint("Horizontal", 3),
    Sketcher.Constraint("Equal", 3, 0),
    Sketcher.Constraint("DistanceX", 1, 1, 1, 2, Q("2 mm")),
    Sketcher.Constraint("DistanceX", -1, 1, 0, 2, Q("2.81 mm")),
    Sketcher.Constraint("DistanceY", -1, 1, 0, 2, Q("15.51 mm")),
])
pad14 = body14.newObject("PartDesign::Pad", "Pad013")
pad14.Profile = sketch14
pad14.Length = 1
pad14.Reversed = True
body15 = doc.addObject("PartDesign::Body", "Body014")

sketch15 = body15.newObject("Sketcher::SketchObject", "Sketch014")
sketch15.AttachmentSupport = (doc.getObject("XY_Plane014"), [""])
sketch15.MapMode = "FlatFace"
sketch15.addGeometry([
    Part.LineSegment(Vector(63.8, 17.5, 0), Vector(63.8, 15.5, 0)),
    Part.LineSegment(Vector(63.8, 15.5, 0), Vector(65.8, 15.5, 0)),
    Part.LineSegment(Vector(65.8, 15.5, 0), Vector(65.8, 17.5, 0)),
    Part.LineSegment(Vector(65.8, 17.5, 0), Vector(63.8, 17.5, 0)),
], False)
sketch15.addConstraint([
    Sketcher.Constraint("Coincident", 0, 2, 1, 1),
    Sketcher.Constraint("Coincident", 1, 2, 2, 1),
    Sketcher.Constraint("Coincident", 2, 2, 3, 1),
    Sketcher.Constraint("Coincident", 3, 2, 0, 1),
    Sketcher.Constraint("Vertical", 0),
    Sketcher.Constraint("Horizontal", 1),
    Sketcher.Constraint("Vertical", 2),
    Sketcher.Constraint("Horizontal", 3),
    Sketcher.Constraint("Equal", 3, 0),
    Sketcher.Constraint("DistanceX", 1, 1, 1, 2, Q("2 mm")),
    Sketcher.Constraint("DistanceX", -1, 1, 0, 2, Q("63.77 mm")),
    Sketcher.Constraint("DistanceY", -1, 1, 0, 2, Q("15.51 mm")),
])
pad15 = body15.newObject("PartDesign::Pad", "Pad014")
pad15.Profile = sketch15
pad15.Length = 1
pad15.Reversed = True
body16 = doc.addObject("PartDesign::Body", "Body015")

sketch16 = body16.newObject("Sketcher::SketchObject", "Sketch015")
sketch16.AttachmentSupport = (doc.getObject("XY_Plane015"), [""])
sketch16.MapMode = "FlatFace"
sketch16.AttachmentOffset = App.Placement(Vector(0, 0, 1.6), App.Rotation())
sketch16.addGeometry([
    Part.LineSegment(Vector(62, 11, 0), Vector(62, 2, 0)),
    Part.LineSegment(Vector(62, 2, 0), Vector(77, 2, 0)),
    Part.LineSegment(Vector(77, 2, 0), Vector(77, 11, 0)),
    Part.LineSegment(Vector(77, 11, 0), Vector(62, 11, 0)),
], False)
sketch16.addConstraint([
    Sketcher.Constraint("Coincident", 0, 2, 1, 1),
    Sketcher.Constraint("Coincident", 1, 2, 2, 1),
    Sketcher.Constraint("Coincident", 2, 2, 3, 1),
    Sketcher.Constraint("Coincident", 3, 2, 0, 1),
    Sketcher.Constraint("Vertical", 0),
    Sketcher.Constraint("Horizontal", 1),
    Sketcher.Constraint("Vertical", 2),
    Sketcher.Constraint("Horizontal", 3),
    Sketcher.Constraint("DistanceY", 0, 2, 0, 1, Q("9 mm")),
    Sketcher.Constraint("DistanceY", -1, 1, 0, 2, Q("1.85 mm")),
    Sketcher.Constraint("DistanceX", -1, 1, 1, 2, Q("77.35 mm")),
    Sketcher.Constraint("DistanceX", 1, 1, 1, 2, Q("15.0762 mm")),
])
pad16 = body16.newObject("PartDesign::Pad", "Pad015")
pad16.Profile = sketch16
pad16.Length = 1
body17 = doc.addObject("PartDesign::Body", "Body016")

sketch17 = body17.newObject("Sketcher::SketchObject", "Sketch016")
sketch17.AttachmentSupport = (doc.getObject("XY_Plane016"), [""])
sketch17.MapMode = "FlatFace"
sketch17.AttachmentOffset = App.Placement(Vector(0, 0, 1.6), App.Rotation())
sketch17.addGeometry([
    Part.LineSegment(Vector(30.8, 22.6, 0), Vector(30.8, 20.6, 0)),
    Part.LineSegment(Vector(30.8, 20.6, 0), Vector(32.8, 20.6, 0)),
    Part.LineSegment(Vector(32.8, 20.6, 0), Vector(32.8, 22.6, 0)),
    Part.LineSegment(Vector(32.8, 22.6, 0), Vector(30.8, 22.6, 0)),
], False)
sketch17.addConstraint([
    Sketcher.Constraint("Coincident", 0, 2, 1, 1),
    Sketcher.Constraint("Coincident", 1, 2, 2, 1),
    Sketcher.Constraint("Coincident", 2, 2, 3, 1),
    Sketcher.Constraint("Coincident", 3, 2, 0, 1),
    Sketcher.Constraint("Vertical", 0),
    Sketcher.Constraint("Horizontal", 1),
    Sketcher.Constraint("Vertical", 2),
    Sketcher.Constraint("Horizontal", 3),
    Sketcher.Constraint("Equal", 3, 0),
    Sketcher.Constraint("DistanceX", 1, 1, 1, 2, Q("2 mm")),
    Sketcher.Constraint("DistanceX", -1, 1, 0, 2, Q("30.75 mm")),
    Sketcher.Constraint("DistanceY", -1, 1, 0, 2, Q("20.59 mm")),
])
pad17 = body17.newObject("PartDesign::Pad", "Pad016")
pad17.Profile = sketch17
pad17.Length = 1
body18 = doc.addObject("PartDesign::Body", "Body017")

sketch18 = body18.newObject("Sketcher::SketchObject", "Sketch017")
sketch18.AttachmentSupport = (doc.getObject("XY_Plane017"), [""])
sketch18.MapMode = "FlatFace"
sketch18.AttachmentOffset = App.Placement(Vector(0, 0, 2.6), App.Rotation())
sketch18.addGeometry(Part.Circle(Vector(5.1, 22.9, 0), Vector(0, 0, 1), 1.6), False)
sketch18.addConstraint([
    Sketcher.Constraint("Diameter", 0, Q("3.3 mm")),
    Sketcher.Constraint("DistanceX", -1, 1, 0, 3, Q("5.08 mm")),
    Sketcher.Constraint("DistanceY", -1, 1, 0, 3, Q("22.86 mm")),
])
pad18 = body18.newObject("PartDesign::Pad", "Pad017")
pad18.Profile = sketch18
pad18.Length = 10.16
pad18.Reversed = True
doc.recompute()

body19 = doc.addObject("PartDesign::Body", "Body018")
body19.BaseFeature = body18
boolean = body.newObject("PartDesign::Boolean", "Boolean")
boolean.Type = "Cut"
boolean.addObjects([body19])
doc.recompute()

boolean2 = body3.newObject("PartDesign::Boolean", "Boolean001")
boolean2.Type = "Cut"
boolean2.addObjects([body18])
body20 = doc.addObject("PartDesign::Body", "Body019")

sketch19 = body20.newObject("Sketcher::SketchObject", "Sketch018")
sketch19.AttachmentSupport = (doc.getObject("XY_Plane019"), [""])
sketch19.MapMode = "FlatFace"
sketch19.AttachmentOffset = App.Placement(Vector(0, 0, 2.6), App.Rotation())
sketch19.addGeometry(Part.Circle(Vector(39.4, 6.3, 0), Vector(0, 0, 1), 1.6), False)
sketch19.addConstraint([
    Sketcher.Constraint("Diameter", 0, Q("3.3 mm")),
    Sketcher.Constraint("DistanceX", -1, 1, 0, 3, Q("39.37 mm")),
    Sketcher.Constraint("DistanceY", -1, 1, 0, 3, Q("6.35 mm")),
])
pad19 = body20.newObject("PartDesign::Pad", "Pad018")
pad19.Profile = sketch19
pad19.Length = 10.16
pad19.Reversed = True
doc.recompute()

body21 = doc.addObject("PartDesign::Body", "Body020")
body21.BaseFeature = body20
boolean3 = body.newObject("PartDesign::Boolean", "Boolean002")
boolean3.Type = "Cut"
boolean3.addObjects([body21])
doc.recompute()

boolean4 = body5.newObject("PartDesign::Boolean", "Boolean003")
boolean4.Type = "Cut"
boolean4.addObjects([body20])
body22 = doc.addObject("PartDesign::Body", "Body021")

sketch20 = body22.newObject("Sketcher::SketchObject", "Sketch019")
sketch20.AttachmentSupport = (doc.getObject("XY_Plane021"), [""])
sketch20.MapMode = "FlatFace"
sketch20.AttachmentOffset = App.Placement(Vector(0, 0, 2.6), App.Rotation())
sketch20.addGeometry(Part.Circle(Vector(73.7, 22.9, 0), Vector(0, 0, 1), 1.6), False)
sketch20.addConstraint([
    Sketcher.Constraint("Diameter", 0, Q("3.3 mm")),
    Sketcher.Constraint("DistanceX", -1, 1, 0, 3, Q("73.66 mm")),
    Sketcher.Constraint("DistanceY", -1, 1, 0, 3, Q("22.86 mm")),
])
pad20 = body22.newObject("PartDesign::Pad", "Pad019")
pad20.Profile = sketch20
pad20.Length = 10.16
pad20.Reversed = True
doc.recompute()

body23 = doc.addObject("PartDesign::Body", "Body022")
body23.BaseFeature = body22
boolean5 = body.newObject("PartDesign::Boolean", "Boolean004")
boolean5.Type = "Cut"
boolean5.addObjects([body23])
doc.recompute()

boolean6 = body4.newObject("PartDesign::Boolean", "Boolean005")
boolean6.Type = "Cut"
boolean6.addObjects([body22])

doc.recompute()
